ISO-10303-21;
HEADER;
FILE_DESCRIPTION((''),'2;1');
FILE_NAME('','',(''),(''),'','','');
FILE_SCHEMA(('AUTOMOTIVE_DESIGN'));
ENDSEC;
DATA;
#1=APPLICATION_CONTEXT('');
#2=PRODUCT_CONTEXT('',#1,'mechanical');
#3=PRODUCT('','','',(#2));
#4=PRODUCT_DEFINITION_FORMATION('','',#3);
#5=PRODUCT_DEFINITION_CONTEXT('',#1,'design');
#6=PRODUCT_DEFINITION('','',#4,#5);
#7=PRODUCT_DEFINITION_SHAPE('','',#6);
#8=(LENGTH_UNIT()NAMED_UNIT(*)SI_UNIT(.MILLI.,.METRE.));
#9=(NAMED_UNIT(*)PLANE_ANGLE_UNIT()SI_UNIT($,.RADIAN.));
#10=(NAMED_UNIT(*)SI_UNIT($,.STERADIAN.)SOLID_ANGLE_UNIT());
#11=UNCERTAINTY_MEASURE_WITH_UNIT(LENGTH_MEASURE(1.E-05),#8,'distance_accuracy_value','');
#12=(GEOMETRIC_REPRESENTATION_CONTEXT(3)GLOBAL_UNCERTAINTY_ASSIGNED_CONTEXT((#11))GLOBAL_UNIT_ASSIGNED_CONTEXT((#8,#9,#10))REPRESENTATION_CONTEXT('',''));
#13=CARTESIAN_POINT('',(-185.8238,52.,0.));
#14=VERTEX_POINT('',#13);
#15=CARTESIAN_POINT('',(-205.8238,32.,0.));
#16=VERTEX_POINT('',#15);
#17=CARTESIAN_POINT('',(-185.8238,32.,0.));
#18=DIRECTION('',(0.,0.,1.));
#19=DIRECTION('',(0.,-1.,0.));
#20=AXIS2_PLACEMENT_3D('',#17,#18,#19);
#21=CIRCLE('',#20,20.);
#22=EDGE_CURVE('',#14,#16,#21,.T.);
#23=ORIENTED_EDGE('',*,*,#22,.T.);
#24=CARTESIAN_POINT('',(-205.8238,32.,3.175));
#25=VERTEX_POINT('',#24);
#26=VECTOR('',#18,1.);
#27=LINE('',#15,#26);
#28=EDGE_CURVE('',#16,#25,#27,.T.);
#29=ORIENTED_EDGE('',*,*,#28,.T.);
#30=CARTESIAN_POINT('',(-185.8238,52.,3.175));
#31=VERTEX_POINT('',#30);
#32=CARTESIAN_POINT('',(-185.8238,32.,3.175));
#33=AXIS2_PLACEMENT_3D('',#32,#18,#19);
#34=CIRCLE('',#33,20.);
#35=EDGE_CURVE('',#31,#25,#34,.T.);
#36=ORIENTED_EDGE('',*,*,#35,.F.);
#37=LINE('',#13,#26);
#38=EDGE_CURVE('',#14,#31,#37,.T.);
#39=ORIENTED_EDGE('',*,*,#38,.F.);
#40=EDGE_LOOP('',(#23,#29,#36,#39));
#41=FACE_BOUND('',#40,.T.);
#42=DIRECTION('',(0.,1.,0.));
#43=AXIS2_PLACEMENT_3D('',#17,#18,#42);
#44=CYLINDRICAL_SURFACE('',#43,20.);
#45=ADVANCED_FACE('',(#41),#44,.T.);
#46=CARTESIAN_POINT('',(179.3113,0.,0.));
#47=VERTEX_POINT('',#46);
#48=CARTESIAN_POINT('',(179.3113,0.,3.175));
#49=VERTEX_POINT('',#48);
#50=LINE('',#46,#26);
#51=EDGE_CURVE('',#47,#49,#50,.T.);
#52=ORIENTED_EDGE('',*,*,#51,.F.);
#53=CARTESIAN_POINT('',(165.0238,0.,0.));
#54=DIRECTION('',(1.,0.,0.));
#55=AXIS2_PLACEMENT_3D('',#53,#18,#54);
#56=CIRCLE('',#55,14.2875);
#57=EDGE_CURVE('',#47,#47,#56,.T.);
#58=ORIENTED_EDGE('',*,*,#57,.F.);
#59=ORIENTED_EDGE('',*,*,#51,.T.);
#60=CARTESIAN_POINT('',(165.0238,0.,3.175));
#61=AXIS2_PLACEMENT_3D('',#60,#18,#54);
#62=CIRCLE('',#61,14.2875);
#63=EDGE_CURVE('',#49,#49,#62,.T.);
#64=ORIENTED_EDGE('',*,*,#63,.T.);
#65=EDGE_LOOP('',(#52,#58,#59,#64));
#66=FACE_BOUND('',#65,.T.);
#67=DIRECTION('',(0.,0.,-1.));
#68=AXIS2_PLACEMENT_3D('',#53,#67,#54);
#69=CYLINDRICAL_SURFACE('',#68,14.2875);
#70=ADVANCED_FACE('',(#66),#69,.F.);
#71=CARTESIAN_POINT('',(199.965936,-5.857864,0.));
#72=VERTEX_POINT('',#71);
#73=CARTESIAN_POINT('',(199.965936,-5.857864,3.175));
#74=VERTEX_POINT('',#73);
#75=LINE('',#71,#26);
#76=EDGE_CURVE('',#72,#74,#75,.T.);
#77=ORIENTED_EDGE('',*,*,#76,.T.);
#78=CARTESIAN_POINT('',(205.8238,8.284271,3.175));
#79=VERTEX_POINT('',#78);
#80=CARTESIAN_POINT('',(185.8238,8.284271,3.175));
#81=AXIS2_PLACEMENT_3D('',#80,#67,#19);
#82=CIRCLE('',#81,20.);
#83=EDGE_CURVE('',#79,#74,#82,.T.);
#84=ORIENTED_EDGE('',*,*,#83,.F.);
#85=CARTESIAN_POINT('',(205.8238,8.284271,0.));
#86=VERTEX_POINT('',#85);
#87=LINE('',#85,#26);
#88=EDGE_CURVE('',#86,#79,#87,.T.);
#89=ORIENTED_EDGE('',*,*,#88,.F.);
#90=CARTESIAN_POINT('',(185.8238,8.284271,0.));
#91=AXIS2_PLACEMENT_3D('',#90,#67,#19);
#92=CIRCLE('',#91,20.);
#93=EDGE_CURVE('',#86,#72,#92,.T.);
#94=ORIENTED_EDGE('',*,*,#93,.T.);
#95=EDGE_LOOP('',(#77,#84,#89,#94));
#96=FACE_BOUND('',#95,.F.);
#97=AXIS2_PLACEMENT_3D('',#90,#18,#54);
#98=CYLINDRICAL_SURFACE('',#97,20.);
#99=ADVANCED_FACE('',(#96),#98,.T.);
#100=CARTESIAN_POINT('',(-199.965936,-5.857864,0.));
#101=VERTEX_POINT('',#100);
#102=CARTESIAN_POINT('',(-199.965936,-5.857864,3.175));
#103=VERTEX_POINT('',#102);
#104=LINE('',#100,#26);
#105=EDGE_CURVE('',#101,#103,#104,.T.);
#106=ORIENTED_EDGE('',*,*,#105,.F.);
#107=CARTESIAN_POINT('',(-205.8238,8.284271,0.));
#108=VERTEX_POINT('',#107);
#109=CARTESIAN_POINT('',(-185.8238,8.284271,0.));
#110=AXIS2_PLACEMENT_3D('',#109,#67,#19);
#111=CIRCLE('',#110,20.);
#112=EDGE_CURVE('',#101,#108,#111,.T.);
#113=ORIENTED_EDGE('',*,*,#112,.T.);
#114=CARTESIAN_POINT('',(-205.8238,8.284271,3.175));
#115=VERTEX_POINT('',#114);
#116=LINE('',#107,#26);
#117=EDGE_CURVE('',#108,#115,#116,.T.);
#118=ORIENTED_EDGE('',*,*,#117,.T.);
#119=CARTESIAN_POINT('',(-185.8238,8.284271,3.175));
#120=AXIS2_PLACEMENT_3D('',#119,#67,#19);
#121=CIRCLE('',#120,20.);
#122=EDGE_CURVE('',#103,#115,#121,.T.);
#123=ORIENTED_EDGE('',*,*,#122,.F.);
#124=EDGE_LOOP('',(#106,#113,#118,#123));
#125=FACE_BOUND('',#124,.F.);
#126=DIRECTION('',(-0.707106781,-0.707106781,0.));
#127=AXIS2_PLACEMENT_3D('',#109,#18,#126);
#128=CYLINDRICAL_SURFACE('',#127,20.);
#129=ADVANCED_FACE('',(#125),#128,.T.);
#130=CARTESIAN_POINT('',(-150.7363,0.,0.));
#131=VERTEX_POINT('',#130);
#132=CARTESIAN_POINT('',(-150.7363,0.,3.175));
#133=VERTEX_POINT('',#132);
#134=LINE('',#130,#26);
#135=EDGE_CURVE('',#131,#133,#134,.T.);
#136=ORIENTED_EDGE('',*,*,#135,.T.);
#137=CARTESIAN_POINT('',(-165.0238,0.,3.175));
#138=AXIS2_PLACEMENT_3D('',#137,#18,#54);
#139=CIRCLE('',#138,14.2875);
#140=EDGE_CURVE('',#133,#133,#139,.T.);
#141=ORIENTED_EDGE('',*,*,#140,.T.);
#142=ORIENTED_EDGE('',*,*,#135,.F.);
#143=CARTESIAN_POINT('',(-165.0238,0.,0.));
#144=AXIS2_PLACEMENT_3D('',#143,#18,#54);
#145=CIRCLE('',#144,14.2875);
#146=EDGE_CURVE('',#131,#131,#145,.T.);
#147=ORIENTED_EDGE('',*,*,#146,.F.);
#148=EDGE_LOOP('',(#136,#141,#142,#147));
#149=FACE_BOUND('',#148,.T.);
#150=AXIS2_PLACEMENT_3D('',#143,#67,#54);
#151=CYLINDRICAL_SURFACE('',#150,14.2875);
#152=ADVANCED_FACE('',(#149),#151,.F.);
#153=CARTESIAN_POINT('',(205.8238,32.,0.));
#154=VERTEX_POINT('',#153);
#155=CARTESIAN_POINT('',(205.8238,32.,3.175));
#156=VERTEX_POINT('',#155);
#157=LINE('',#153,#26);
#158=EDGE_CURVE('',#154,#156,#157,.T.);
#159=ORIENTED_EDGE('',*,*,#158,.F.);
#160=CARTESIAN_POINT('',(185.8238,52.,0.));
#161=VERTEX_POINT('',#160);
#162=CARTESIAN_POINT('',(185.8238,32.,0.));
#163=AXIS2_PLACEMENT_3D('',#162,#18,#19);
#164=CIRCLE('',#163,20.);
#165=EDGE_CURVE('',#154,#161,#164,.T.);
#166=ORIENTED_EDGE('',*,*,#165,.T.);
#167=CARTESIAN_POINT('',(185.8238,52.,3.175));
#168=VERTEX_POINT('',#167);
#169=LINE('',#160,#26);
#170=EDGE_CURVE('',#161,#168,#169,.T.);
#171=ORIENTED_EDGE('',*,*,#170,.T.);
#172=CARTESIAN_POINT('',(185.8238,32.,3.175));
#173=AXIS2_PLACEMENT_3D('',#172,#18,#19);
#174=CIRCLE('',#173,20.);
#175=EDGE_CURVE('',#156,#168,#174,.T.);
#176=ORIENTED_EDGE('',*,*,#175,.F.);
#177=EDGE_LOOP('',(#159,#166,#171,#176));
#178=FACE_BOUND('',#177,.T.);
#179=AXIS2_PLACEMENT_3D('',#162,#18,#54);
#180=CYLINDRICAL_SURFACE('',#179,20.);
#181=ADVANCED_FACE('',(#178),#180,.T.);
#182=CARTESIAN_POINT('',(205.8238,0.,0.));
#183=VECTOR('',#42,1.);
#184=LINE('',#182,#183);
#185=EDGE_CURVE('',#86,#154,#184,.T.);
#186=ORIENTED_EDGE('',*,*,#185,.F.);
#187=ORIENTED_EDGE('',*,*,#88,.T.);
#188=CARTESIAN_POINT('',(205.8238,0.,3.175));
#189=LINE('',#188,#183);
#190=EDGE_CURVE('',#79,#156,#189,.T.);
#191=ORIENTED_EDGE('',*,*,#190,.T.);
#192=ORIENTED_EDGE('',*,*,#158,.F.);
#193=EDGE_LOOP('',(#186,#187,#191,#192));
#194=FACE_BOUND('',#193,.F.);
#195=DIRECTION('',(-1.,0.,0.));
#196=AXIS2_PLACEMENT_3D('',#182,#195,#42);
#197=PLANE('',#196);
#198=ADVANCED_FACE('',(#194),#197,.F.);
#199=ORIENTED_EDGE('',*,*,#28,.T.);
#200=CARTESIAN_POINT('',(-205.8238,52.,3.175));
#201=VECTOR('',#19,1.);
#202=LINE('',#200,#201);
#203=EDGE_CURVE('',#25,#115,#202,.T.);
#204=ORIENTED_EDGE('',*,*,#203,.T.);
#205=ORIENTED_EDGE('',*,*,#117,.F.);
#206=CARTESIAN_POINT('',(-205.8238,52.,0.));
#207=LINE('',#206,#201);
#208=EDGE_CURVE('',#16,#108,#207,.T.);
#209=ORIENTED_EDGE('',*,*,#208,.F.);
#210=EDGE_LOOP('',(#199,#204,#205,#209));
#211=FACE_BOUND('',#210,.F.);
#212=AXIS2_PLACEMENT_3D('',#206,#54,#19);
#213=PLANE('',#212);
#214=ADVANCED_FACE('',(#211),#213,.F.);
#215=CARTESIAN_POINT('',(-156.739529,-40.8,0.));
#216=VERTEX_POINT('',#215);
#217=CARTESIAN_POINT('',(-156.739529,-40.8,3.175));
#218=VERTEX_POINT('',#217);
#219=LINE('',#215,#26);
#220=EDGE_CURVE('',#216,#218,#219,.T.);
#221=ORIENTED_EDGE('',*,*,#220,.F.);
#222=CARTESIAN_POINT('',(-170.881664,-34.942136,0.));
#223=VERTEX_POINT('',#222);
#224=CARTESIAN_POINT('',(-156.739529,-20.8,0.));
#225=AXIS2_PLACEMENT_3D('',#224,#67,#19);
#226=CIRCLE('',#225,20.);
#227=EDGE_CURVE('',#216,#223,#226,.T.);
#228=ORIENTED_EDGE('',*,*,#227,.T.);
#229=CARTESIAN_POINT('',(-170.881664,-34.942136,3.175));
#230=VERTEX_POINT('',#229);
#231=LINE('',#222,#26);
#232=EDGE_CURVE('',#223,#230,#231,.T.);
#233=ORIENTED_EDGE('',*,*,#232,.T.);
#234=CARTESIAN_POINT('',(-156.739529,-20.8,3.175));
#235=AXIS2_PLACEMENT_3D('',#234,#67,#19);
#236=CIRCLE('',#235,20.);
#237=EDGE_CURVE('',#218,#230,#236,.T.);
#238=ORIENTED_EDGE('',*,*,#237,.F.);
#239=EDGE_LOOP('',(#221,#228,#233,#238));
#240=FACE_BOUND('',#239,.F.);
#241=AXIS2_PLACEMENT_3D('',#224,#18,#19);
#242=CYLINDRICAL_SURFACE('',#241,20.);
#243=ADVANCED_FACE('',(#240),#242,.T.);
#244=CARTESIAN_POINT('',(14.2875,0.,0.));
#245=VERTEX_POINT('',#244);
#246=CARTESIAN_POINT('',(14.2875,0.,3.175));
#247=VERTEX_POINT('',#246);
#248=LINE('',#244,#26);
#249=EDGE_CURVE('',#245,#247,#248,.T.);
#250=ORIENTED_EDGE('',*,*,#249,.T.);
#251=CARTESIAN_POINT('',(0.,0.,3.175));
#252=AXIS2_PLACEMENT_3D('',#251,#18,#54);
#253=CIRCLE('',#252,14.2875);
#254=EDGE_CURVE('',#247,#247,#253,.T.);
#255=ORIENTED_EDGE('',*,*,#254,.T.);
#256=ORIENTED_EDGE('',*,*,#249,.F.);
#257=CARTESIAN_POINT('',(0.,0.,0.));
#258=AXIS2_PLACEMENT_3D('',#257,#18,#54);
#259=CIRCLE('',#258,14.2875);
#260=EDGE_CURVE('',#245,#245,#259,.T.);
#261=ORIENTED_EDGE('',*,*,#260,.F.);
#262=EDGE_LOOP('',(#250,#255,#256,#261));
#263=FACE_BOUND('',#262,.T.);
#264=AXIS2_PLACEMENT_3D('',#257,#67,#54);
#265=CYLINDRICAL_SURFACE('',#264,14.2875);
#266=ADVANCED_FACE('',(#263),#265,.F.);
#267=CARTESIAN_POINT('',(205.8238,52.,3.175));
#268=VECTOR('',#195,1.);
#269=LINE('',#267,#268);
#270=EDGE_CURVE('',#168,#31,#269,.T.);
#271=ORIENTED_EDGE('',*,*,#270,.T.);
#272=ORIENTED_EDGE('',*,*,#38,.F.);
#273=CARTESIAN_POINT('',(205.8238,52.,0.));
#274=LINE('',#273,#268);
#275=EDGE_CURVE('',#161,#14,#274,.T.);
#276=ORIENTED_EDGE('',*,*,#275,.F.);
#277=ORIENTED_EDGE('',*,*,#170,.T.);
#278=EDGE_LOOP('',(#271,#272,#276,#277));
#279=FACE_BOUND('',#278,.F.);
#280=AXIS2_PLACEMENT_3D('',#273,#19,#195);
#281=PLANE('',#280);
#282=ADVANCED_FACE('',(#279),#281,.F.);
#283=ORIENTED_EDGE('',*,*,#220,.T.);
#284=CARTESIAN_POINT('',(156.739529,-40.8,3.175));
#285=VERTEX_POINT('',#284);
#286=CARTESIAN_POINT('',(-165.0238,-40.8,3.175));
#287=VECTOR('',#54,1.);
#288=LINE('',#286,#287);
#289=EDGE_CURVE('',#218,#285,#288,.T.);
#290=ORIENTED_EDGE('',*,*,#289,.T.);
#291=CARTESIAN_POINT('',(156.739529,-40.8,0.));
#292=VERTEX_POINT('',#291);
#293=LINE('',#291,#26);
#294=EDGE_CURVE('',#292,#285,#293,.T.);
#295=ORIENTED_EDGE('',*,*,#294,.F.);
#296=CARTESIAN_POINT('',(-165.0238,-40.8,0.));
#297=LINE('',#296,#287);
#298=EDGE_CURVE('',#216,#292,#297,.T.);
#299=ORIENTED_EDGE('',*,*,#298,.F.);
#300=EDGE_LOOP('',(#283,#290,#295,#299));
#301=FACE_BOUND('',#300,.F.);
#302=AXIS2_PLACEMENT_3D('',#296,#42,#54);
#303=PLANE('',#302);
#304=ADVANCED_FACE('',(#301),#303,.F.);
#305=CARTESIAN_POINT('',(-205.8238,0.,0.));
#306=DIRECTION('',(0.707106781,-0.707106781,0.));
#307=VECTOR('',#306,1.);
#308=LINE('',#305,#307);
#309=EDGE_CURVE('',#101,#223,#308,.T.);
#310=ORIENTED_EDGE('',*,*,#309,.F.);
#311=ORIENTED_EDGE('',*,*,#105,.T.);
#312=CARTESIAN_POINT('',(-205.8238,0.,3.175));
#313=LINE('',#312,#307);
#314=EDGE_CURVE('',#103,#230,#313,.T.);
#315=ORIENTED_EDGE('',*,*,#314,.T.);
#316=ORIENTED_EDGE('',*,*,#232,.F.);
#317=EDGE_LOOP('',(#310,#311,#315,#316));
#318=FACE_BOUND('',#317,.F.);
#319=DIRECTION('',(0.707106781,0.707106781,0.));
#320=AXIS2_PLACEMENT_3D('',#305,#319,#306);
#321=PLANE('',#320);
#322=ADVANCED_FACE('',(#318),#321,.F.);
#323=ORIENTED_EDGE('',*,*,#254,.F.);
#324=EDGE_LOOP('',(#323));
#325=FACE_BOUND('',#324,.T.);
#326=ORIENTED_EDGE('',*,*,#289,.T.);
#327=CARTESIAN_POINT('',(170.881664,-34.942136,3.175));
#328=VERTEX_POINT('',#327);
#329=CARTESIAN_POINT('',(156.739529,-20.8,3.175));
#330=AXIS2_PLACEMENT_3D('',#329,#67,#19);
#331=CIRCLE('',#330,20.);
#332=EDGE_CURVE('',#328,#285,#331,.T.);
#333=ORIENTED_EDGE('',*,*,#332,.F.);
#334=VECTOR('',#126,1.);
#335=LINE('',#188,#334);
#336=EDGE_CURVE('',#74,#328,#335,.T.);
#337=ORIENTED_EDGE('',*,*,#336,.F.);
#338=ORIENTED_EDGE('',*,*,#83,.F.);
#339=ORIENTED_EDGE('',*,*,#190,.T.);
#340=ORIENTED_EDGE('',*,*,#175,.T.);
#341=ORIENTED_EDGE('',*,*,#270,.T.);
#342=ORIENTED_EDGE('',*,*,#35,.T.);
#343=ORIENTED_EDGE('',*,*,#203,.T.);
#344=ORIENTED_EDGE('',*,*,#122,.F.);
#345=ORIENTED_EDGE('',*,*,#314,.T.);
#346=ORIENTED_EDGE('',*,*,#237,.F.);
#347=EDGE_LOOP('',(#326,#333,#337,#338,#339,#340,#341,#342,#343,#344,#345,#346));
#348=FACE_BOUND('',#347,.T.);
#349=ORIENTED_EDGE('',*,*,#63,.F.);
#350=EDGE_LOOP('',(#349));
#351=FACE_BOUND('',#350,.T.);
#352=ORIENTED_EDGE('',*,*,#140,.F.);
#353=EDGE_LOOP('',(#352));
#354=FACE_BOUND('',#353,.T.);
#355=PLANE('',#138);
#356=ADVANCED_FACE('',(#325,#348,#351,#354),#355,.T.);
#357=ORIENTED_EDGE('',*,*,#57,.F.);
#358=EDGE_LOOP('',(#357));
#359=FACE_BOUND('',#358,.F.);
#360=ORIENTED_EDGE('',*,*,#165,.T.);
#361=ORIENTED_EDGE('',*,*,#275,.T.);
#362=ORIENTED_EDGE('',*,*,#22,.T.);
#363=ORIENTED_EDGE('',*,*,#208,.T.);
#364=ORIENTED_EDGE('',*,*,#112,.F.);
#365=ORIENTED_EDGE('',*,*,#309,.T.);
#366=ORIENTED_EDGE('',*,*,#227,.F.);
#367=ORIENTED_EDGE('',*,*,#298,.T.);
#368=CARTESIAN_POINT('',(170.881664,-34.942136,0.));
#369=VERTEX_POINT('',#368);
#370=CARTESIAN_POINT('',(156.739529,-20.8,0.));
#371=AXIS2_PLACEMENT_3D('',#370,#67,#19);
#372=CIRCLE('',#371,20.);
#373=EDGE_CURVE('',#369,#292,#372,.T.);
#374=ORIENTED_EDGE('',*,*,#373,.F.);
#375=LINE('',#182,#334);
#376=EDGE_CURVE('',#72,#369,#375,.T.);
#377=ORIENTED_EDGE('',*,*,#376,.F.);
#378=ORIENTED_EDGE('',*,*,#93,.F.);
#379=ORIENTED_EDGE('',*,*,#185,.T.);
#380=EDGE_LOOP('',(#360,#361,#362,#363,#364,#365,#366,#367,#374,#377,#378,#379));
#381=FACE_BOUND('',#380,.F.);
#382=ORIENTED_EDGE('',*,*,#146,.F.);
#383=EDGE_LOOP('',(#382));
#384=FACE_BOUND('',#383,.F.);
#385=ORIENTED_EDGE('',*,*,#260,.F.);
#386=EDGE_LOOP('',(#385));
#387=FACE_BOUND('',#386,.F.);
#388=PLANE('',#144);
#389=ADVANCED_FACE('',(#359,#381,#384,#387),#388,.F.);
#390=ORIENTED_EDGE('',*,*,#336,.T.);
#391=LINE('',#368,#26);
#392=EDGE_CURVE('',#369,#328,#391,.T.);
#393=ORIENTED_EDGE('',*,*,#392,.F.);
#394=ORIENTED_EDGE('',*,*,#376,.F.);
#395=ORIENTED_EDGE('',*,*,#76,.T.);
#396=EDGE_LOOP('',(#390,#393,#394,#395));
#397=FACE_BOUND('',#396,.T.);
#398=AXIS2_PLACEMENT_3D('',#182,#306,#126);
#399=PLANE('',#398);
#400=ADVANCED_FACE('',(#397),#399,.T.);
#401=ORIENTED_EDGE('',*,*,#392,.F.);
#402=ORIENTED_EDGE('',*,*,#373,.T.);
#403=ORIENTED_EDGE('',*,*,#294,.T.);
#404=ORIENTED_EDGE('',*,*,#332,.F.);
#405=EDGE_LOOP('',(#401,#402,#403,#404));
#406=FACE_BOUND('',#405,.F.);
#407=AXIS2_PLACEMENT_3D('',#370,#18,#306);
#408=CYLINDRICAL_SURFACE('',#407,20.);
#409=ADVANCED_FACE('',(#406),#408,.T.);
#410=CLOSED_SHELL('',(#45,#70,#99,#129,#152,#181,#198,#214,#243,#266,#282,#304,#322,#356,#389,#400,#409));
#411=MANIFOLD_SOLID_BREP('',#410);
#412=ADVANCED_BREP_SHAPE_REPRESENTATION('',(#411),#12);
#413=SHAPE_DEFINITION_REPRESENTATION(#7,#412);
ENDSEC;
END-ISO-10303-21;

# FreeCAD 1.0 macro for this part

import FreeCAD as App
import Part
import Sketcher
from FreeCAD import Vector
Q = App.Units.Quantity


def edges_at(feature, points):
    """Names of the edges that pass closest to the given points."""
    edges = feature.Shape.Edges
    near = lambda p: min(range(len(edges)), key=lambda i: edges[i].distToShape(Part.Vertex(*p))[0])
    return sorted({f"Edge{near(p) + 1}" for p in points})


def add_polygon(sketch, points):
    """Adds a closed chain of lines whose ends are joined by coincident constraints."""
    first, n = sketch.GeometryCount, len(points)
    for a, b in zip(points, points[1:] + points[:1]):
        sketch.addGeometry(Part.LineSegment(App.Vector(*a, 0), App.Vector(*b, 0)), False)
    for i in range(n):
        sketch.addConstraint(Sketcher.Constraint("Coincident", first + i, 2, first + (i + 1) % n, 1))

doc = App.newDocument("Part")
body = doc.addObject("PartDesign::Body", "Body")

# Sketch on XY plane
sketch1 = body.newObject("Sketcher::SketchObject", "Sketch")
sketch1.AttachmentSupport = (doc.getObject("XY_Plane"), [""])
sketch1.MapMode = "FlatFace"
add_polygon(sketch1, [(-205.8238, 0), (-165.0238, -40.8), (165.0238, -40.8), (205.8238, 0), (205.8238, 52), (-205.8238, 52)])  # lines 0-5
sketch1.addGeometry(Part.Circle(Vector(-165.0238, 0, 0), Vector(0, 0, 1), 14.2875), False)  # 6
sketch1.addGeometry(Part.Circle(Vector(0, 0, 0), Vector(0, 0, 1), 14.2875), False)  # 7
sketch1.addGeometry(Part.Circle(Vector(165.0238, 0, 0), Vector(0, 0, 1), 14.2875), False)  # 8
sketch1.addConstraint([
    Sketcher.Constraint("Horizontal", 1),
    Sketcher.Constraint("Vertical", 3),
    Sketcher.Constraint("Horizontal", 4),
    Sketcher.Constraint("Vertical", 5),
    Sketcher.Constraint("Coincident", 7, 3, -1, 1),
    Sketcher.Constraint("Equal", 6, 7),
    Sketcher.Constraint("Equal", 7, 8),
    Sketcher.Constraint("Symmetric", 6, 3, 8, 3, -1, 1),
    Sketcher.Constraint("Symmetric", 2, 2, 5, 2, -1, 1),
    Sketcher.Constraint("PointOnObject", 6, 3, -1),
    Sketcher.Constraint("PointOnObject", 2, 2, -1),
    Sketcher.Constraint("Perpendicular", 0, 2),
    Sketcher.Constraint("Vertical", 6, 3, 0, 2),
    Sketcher.Constraint("Vertical", 8, 3, 1, 2),
    Sketcher.Constraint("Diameter", 6, Q("1.125 in")),
    Sketcher.Constraint("DistanceX", 1, 1, 1, 2, Q("12.994 in")),
    Sketcher.Constraint("DistanceX", 4, 2, 4, 1, 411.6476),
    Sketcher.Constraint("DistanceY", 3, 1, 3, 2, 52.0),
])
pad1 = body.newObject("PartDesign::Pad", "Pad")
pad1.Profile = sketch1
pad1.Length = Q("0.125 in")
doc.recompute()

fillet = body.newObject("PartDesign::Fillet", "Fillet")
fillet.Base = (pad1, edges_at(pad1, [(-205.824, 52, 1.587), (205.824, 52, 1.587)]))
fillet.Radius = 20
doc.recompute()

fillet2 = body.newObject("PartDesign::Fillet", "Fillet001")
fillet2.Base = (fillet, edges_at(fillet, [
    (-205.824, 0, 1.587),
    (205.824, 0, 1.587),
    (165.024, -40.8, 1.587),
    (-165.024, -40.8, 1.587),
]))
fillet2.Radius = 20

doc.recompute()
